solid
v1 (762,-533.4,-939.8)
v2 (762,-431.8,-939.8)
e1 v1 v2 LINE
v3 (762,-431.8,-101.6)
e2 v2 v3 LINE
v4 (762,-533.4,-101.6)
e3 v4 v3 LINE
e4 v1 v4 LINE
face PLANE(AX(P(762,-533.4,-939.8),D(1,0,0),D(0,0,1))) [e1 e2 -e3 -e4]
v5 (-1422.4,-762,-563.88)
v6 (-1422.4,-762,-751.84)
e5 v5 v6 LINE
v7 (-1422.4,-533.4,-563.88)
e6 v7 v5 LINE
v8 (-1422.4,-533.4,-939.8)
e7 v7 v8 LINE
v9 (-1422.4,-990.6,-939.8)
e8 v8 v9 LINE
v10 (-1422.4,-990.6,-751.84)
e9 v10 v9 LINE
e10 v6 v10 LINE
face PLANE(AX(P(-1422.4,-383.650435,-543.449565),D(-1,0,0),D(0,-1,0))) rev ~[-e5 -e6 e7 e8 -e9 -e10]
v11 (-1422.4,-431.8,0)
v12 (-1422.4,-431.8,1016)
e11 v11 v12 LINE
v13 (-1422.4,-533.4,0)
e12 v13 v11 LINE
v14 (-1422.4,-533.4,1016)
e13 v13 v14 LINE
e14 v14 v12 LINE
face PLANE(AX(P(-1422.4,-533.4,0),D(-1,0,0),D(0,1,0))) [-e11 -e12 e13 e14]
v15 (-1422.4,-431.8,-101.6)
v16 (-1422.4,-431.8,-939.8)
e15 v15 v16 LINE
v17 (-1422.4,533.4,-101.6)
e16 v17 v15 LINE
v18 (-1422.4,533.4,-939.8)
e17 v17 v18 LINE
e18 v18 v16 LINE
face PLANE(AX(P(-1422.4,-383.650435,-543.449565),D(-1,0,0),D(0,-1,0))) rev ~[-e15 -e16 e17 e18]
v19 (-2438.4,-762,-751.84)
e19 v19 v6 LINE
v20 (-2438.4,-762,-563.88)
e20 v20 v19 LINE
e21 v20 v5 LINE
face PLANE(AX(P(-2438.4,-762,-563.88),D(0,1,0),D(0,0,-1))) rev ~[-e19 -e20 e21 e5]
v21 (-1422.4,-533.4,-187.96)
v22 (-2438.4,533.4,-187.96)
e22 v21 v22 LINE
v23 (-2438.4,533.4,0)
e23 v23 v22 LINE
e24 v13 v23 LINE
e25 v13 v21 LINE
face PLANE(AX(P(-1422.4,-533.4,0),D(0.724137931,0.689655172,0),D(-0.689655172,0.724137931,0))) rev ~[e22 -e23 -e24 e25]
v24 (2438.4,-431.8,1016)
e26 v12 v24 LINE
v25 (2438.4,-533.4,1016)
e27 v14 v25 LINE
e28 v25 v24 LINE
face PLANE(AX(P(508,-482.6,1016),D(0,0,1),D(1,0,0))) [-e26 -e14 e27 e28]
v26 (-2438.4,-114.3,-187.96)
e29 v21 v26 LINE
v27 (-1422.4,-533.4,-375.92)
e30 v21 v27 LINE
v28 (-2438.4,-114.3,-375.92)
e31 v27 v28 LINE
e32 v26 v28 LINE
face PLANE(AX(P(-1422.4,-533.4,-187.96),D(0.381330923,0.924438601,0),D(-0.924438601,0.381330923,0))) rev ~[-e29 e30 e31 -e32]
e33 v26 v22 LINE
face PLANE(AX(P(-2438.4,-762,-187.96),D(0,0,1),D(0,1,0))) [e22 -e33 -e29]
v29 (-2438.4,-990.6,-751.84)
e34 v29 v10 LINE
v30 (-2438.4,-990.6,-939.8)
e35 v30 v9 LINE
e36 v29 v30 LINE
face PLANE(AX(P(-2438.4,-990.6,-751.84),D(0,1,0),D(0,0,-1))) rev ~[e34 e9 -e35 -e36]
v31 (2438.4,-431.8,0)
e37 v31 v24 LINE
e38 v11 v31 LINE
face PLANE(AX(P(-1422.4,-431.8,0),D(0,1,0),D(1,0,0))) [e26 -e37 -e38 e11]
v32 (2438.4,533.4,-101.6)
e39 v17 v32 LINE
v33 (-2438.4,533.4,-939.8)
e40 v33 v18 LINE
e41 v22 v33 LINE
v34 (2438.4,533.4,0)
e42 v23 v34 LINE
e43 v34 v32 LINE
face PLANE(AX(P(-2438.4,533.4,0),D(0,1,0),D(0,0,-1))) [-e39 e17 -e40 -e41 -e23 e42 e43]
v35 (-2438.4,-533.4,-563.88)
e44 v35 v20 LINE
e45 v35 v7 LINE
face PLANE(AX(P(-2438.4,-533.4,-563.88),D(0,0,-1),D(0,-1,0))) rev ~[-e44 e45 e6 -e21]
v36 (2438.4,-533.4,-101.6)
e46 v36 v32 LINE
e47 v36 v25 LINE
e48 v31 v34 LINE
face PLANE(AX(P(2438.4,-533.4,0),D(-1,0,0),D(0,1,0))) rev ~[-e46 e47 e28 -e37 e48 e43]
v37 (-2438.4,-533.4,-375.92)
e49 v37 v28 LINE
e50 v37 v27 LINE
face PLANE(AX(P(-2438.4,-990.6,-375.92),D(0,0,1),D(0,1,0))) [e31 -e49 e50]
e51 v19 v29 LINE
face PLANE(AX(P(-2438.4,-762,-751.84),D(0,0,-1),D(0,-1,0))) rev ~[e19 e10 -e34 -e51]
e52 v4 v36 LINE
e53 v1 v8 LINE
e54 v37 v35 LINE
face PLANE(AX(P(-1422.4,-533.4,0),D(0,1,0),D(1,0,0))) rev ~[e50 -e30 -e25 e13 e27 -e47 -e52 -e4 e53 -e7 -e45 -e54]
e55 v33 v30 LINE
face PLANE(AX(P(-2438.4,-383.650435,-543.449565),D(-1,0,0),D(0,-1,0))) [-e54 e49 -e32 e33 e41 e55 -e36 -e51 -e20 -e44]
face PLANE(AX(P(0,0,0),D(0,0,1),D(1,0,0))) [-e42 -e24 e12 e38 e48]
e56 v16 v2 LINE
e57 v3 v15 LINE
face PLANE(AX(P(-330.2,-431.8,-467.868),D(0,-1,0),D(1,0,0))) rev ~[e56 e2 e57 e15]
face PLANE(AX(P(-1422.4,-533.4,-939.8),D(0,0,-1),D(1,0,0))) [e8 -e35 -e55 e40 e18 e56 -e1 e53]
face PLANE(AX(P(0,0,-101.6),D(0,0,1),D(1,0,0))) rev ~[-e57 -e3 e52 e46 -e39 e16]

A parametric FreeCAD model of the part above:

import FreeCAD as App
import Part
import Sketcher
Q = App.Units.Quantity

doc = App.newDocument("Part")
body = doc.addObject("PartDesign::Body", "Body")

sketch1 = body.newObject("Sketcher::SketchObject", "Sketch")
sketch1.AttachmentSupport = (doc.getObject("XY_Plane"), [""])
sketch1.MapMode = "FlatFace"
sketch1.addGeometry(Part.LineSegment(App.Vector(-2438, 533, 0), App.Vector(-2438, -533, 0)), False)
sketch1.addGeometry(Part.LineSegment(App.Vector(-2438, -533, 0), App.Vector(2438, -533, 0)), False)
sketch1.addGeometry(Part.LineSegment(App.Vector(2438, -533, 0), App.Vector(2438, 533, 0)), False)
sketch1.addGeometry(Part.LineSegment(App.Vector(2438, 533, 0), App.Vector(-2438, 533, 0)), False)
sketch1.addConstraint(Sketcher.Constraint("Coincident", 0, 2, 1, 1))
sketch1.addConstraint(Sketcher.Constraint("Coincident", 1, 2, 2, 1))
sketch1.addConstraint(Sketcher.Constraint("Coincident", 2, 2, 3, 1))
sketch1.addConstraint(Sketcher.Constraint("Coincident", 3, 2, 0, 1))
sketch1.addConstraint(Sketcher.Constraint("Vertical", 0))
sketch1.addConstraint(Sketcher.Constraint("Horizontal", 1))
sketch1.addConstraint(Sketcher.Constraint("Vertical", 2))
sketch1.addConstraint(Sketcher.Constraint("Horizontal", 3))
sketch1.addConstraint(Sketcher.Constraint("Symmetric", 0, 2, 2, 2, -1, 1))
sketch1.addConstraint(Sketcher.Constraint("DistanceX", 1, 1, 1, 2, Q("192 in")))
sketch1.addConstraint(Sketcher.Constraint("DistanceY", 0, 2, 0, 1, Q("42 in")))
pad1 = body.newObject("PartDesign::Pad", "Pad")
pad1.Profile = sketch1
pad1.Length = Q("4 in")
pad1.Reversed = True

sketch2 = body.newObject("Sketcher::SketchObject", "Sketch001")
sketch2.AttachmentSupport = (doc.getObject("YZ_Plane"), [""])
sketch2.MapMode = "FlatFace"
sketch2.AttachmentOffset = App.Placement(App.Vector(0, 0, -96 * 25.4), App.Rotation())
sketch2.addGeometry(Part.LineSegment(App.Vector(-533, -188, 0), App.Vector(-533, 0, 0)), False)
sketch2.addGeometry(Part.LineSegment(App.Vector(-533, 0, 0), App.Vector(533, 0, 0)), False)
sketch2.addGeometry(Part.LineSegment(App.Vector(533, 0, 0), App.Vector(533, -940, 0)), False)
sketch2.addGeometry(Part.LineSegment(App.Vector(533, -940, 0), App.Vector(-1448, -940, 0)), False)
sketch2.addGeometry(Part.LineSegment(App.Vector(-1448, -940, 0), App.Vector(-1448, -752, 0)), False)
sketch2.addGeometry(Part.LineSegment(App.Vector(-1448, -752, 0), App.Vector(-1219, -752, 0)), False)
sketch2.addGeometry(Part.LineSegment(App.Vector(-1219, -752, 0), App.Vector(-1219, -564, 0)), False)
sketch2.addGeometry(Part.LineSegment(App.Vector(-1219, -564, 0), App.Vector(-991, -564, 0)), False)
sketch2.addGeometry(Part.LineSegment(App.Vector(-991, -564, 0), App.Vector(-991, -376, 0)), False)
sketch2.addGeometry(Part.LineSegment(App.Vector(-991, -376, 0), App.Vector(-762, -376, 0)), False)
sketch2.addGeometry(Part.LineSegment(App.Vector(-762, -376, 0), App.Vector(-762, -188, 0)), False)
sketch2.addGeometry(Part.LineSegment(App.Vector(-762, -188, 0), App.Vector(-533, -188, 0)), False)
sketch2.addConstraint(Sketcher.Constraint("Coincident", 0, 2, 1, 1))
sketch2.addConstraint(Sketcher.Constraint("Coincident", 1, 2, 2, 1))
sketch2.addConstraint(Sketcher.Constraint("Coincident", 2, 2, 3, 1))
sketch2.addConstraint(Sketcher.Constraint("Coincident", 3, 2, 4, 1))
sketch2.addConstraint(Sketcher.Constraint("Coincident", 4, 2, 5, 1))
sketch2.addConstraint(Sketcher.Constraint("Coincident", 5, 2, 6, 1))
sketch2.addConstraint(Sketcher.Constraint("Coincident", 6, 2, 7, 1))
sketch2.addConstraint(Sketcher.Constraint("Coincident", 7, 2, 8, 1))
sketch2.addConstraint(Sketcher.Constraint("Coincident", 8, 2, 9, 1))
sketch2.addConstraint(Sketcher.Constraint("Coincident", 9, 2, 10, 1))
sketch2.addConstraint(Sketcher.Constraint("Coincident", 10, 2, 11, 1))
sketch2.addConstraint(Sketcher.Constraint("Coincident", 11, 2, 0, 1))
sketch2.addConstraint(Sketcher.Constraint("Vertical", 0))
sketch2.addConstraint(Sketcher.Constraint("Horizontal", 1))
sketch2.addConstraint(Sketcher.Constraint("Vertical", 2))
sketch2.addConstraint(Sketcher.Constraint("Horizontal", 3))
sketch2.addConstraint(Sketcher.Constraint("Vertical", 4))
sketch2.addConstraint(Sketcher.Constraint("Horizontal", 5))
sketch2.addConstraint(Sketcher.Constraint("Vertical", 6))
sketch2.addConstraint(Sketcher.Constraint("Horizontal", 7))
sketch2.addConstraint(Sketcher.Constraint("Vertical", 8))
sketch2.addConstraint(Sketcher.Constraint("Horizontal", 9))
sketch2.addConstraint(Sketcher.Constraint("Vertical", 10))
sketch2.addConstraint(Sketcher.Constraint("Horizontal", 11))
sketch2.addConstraint(Sketcher.Constraint("Symmetric", 0, 2, 1, 2, -1, 1))
sketch2.addConstraint(Sketcher.Constraint("Equal", 5, 7))
sketch2.addConstraint(Sketcher.Constraint("Equal", 7, 9))
sketch2.addConstraint(Sketcher.Constraint("Equal", 9, 11))
sketch2.addConstraint(Sketcher.Constraint("Equal", 0, 4))
sketch2.addConstraint(Sketcher.Constraint("Equal", 4, 6))
sketch2.addConstraint(Sketcher.Constraint("Equal", 6, 8))
sketch2.addConstraint(Sketcher.Constraint("Equal", 8, 10))
sketch2.addConstraint(Sketcher.Constraint("DistanceX", 1, 1, 1, 2, Q("42 in")))
sketch2.addConstraint(Sketcher.Constraint("DistanceX", 3, 2, 3, 1, Q("78 in")))
sketch2.addConstraint(Sketcher.Constraint("DistanceY", 2, 2, 2, 1, Q("37 in")))
pad2 = body.newObject("PartDesign::Pad", "Pad001")
pad2.Profile = sketch2
pad2.Length = Q("40 in")

sketch3 = body.newObject("Sketcher::SketchObject", "Sketch002")
sketch3.AttachmentSupport = (doc.getObject("XZ_Plane"), [""])
sketch3.MapMode = "FlatFace"
sketch3.AttachmentOffset = App.Placement(App.Vector(0, 0, 21 * 25.4), App.Rotation())
sketch3.addGeometry(Part.LineSegment(App.Vector(762, -102, 0), App.Vector(-1422, -102, 0)), False)
sketch3.addGeometry(Part.LineSegment(App.Vector(-1422, -102, 0), App.Vector(-1422, -940, 0)), False)
sketch3.addGeometry(Part.LineSegment(App.Vector(-1422, -940, 0), App.Vector(-813, -940, 0)), False)
sketch3.addGeometry(Part.LineSegment(App.Vector(-813, -940, 0), App.Vector(-813, -229, 0)), False)
sketch3.addGeometry(Part.LineSegment(App.Vector(-813, -229, 0), App.Vector(-356, -229, 0)), False)
sketch3.addGeometry(Part.LineSegment(App.Vector(-356, -229, 0), App.Vector(-356, -940, 0)), False)
sketch3.addGeometry(Part.LineSegment(App.Vector(-356, -940, 0), App.Vector(-305, -940, 0)), False)
sketch3.addGeometry(Part.LineSegment(App.Vector(-305, -940, 0), App.Vector(-305, -229, 0)), False)
sketch3.addGeometry(Part.LineSegment(App.Vector(-305, -229, 0), App.Vector(152, -229, 0)), False)
sketch3.addGeometry(Part.LineSegment(App.Vector(152, -229, 0), App.Vector(152, -940, 0)), False)
sketch3.addGeometry(Part.LineSegment(App.Vector(152, -940, 0), App.Vector(762, -940, 0)), False)
sketch3.addGeometry(Part.LineSegment(App.Vector(762, -940, 0), App.Vector(762, -102, 0)), False)
sketch3.addConstraint(Sketcher.Constraint("Coincident", 0, 2, 1, 1))
sketch3.addConstraint(Sketcher.Constraint("Coincident", 1, 2, 2, 1))
sketch3.addConstraint(Sketcher.Constraint("Coincident", 2, 2, 3, 1))
sketch3.addConstraint(Sketcher.Constraint("Coincident", 3, 2, 4, 1))
sketch3.addConstraint(Sketcher.Constraint("Coincident", 4, 2, 5, 1))
sketch3.addConstraint(Sketcher.Constraint("Coincident", 5, 2, 6, 1))
sketch3.addConstraint(Sketcher.Constraint("Coincident", 6, 2, 7, 1))
sketch3.addConstraint(Sketcher.Constraint("Coincident", 7, 2, 8, 1))
sketch3.addConstraint(Sketcher.Constraint("Coincident", 8, 2, 9, 1))
sketch3.addConstraint(Sketcher.Constraint("Coincident", 9, 2, 10, 1))
sketch3.addConstraint(Sketcher.Constraint("Coincident", 10, 2, 11, 1))
sketch3.addConstraint(Sketcher.Constraint("Coincident", 11, 2, 0, 1))
sketch3.addConstraint(Sketcher.Constraint("Horizontal", 0))
sketch3.addConstraint(Sketcher.Constraint("Vertical", 1))
sketch3.addConstraint(Sketcher.Constraint("Horizontal", 2))
sketch3.addConstraint(Sketcher.Constraint("Vertical", 3))
sketch3.addConstraint(Sketcher.Constraint("Horizontal", 4))
sketch3.addConstraint(Sketcher.Constraint("Vertical", 5))
sketch3.addConstraint(Sketcher.Constraint("Horizontal", 6))
sketch3.addConstraint(Sketcher.Constraint("Vertical", 7))
sketch3.addConstraint(Sketcher.Constraint("Horizontal", 8))
sketch3.addConstraint(Sketcher.Constraint("Vertical", 9))
sketch3.addConstraint(Sketcher.Constraint("Horizontal", 10))
sketch3.addConstraint(Sketcher.Constraint("Vertical", 11))
sketch3.addConstraint(Sketcher.Constraint("Horizontal", 2, 2, 5, 2))
sketch3.addConstraint(Sketcher.Constraint("Horizontal", 4, 2, 7, 2))
sketch3.addConstraint(Sketcher.Constraint("Horizontal", 6, 2, 9, 2))
sketch3.addConstraint(Sketcher.Constraint("Equal", 4, 8))
sketch3.addConstraint(Sketcher.Constraint("Equal", 2, 10))
sketch3.addConstraint(Sketcher.Constraint("DistanceX", 0, 2, 0, 1, Q("86 in")))
sketch3.addConstraint(Sketcher.Constraint("DistanceX", 2, 1, 2, 2, Q("24 in")))
sketch3.addConstraint(Sketcher.Constraint("DistanceX", 4, 1, 4, 2, Q("18 in")))
sketch3.addConstraint(Sketcher.Constraint("DistanceY", 1, 2, 1, 1, Q("33 in")))
sketch3.addConstraint(Sketcher.Constraint("DistanceY", 3, 1, 3, 2, Q("28 in")))
sketch3.addConstraint(Sketcher.Constraint("DistanceX", 0, 2, -1, 1, Q("56 in")))
sketch3.addConstraint(Sketcher.Constraint("DistanceY", 0, 2, -1, 1, Q("4 in")))
pad3 = body.newObject("PartDesign::Pad", "Pad002")
pad3.Profile = sketch3
pad3.Length = Q("4 in")
pad3.Reversed = True

sketch4 = body.newObject("Sketcher::SketchObject", "Sketch003")
sketch4.AttachmentSupport = (doc.getObject("XY_Plane"), [""])
sketch4.MapMode = "FlatFace"
sketch4.addGeometry(Part.LineSegment(App.Vector(-2438, -533, 0), App.Vector(-1422, -533, 0)), False)
sketch4.addGeometry(Part.LineSegment(App.Vector(-1422, -533, 0), App.Vector(-2438, 533, 0)), False)
sketch4.addGeometry(Part.LineSegment(App.Vector(-2438, 533, 0), App.Vector(-2438, -533, 0)), False)
sketch4.addConstraint(Sketcher.Constraint("Coincident", 0, 2, 1, 1))
sketch4.addConstraint(Sketcher.Constraint("Coincident", 1, 2, 2, 1))
sketch4.addConstraint(Sketcher.Constraint("Coincident", 2, 2, 0, 1))
sketch4.addConstraint(Sketcher.Constraint("Horizontal", 0))
sketch4.addConstraint(Sketcher.Constraint("Vertical", 2))
sketch4.addConstraint(Sketcher.Constraint("DistanceX", 0, 1, 0, 2, Q("40 in")))
sketch4.addConstraint(Sketcher.Constraint("DistanceY", 2, 2, 2, 1, Q("42 in")))
sketch4.addConstraint(Sketcher.Constraint("DistanceX", 0, 2, -1, 1, Q("56 in")))
sketch4.addConstraint(Sketcher.Constraint("DistanceY", 0, 2, -1, 1, Q("21 in")))
pocket1 = body.newObject("PartDesign::Pocket", "Pocket")
pocket1.Profile = sketch4
pocket1.Length = Q("7.4 in")

sketch5 = body.newObject("Sketcher::SketchObject", "Sketch004")
sketch5.AttachmentSupport = (doc.getObject("XY_Plane"), [""])
sketch5.MapMode = "FlatFace"
sketch5.AttachmentOffset = App.Placement(App.Vector(0, 0, -7.4 * 25.4), App.Rotation())
sketch5.addGeometry(Part.LineSegment(App.Vector(-1422, -762, 0), App.Vector(-1422, -533, 0)), False)
sketch5.addGeometry(Part.LineSegment(App.Vector(-1422, -533, 0), App.Vector(-2438, -114, 0)), False)
sketch5.addGeometry(Part.LineSegment(App.Vector(-2438, -114, 0), App.Vector(-2438, -762, 0)), False)
sketch5.addGeometry(Part.LineSegment(App.Vector(-2438, -762, 0), App.Vector(-1422, -762, 0)), False)
sketch5.addConstraint(Sketcher.Constraint("Coincident", 0, 2, 1, 1))
sketch5.addConstraint(Sketcher.Constraint("Coincident", 1, 2, 2, 1))
sketch5.addConstraint(Sketcher.Constraint("Coincident", 2, 2, 3, 1))
sketch5.addConstraint(Sketcher.Constraint("Coincident", 3, 2, 0, 1))
sketch5.addConstraint(Sketcher.Constraint("Vertical", 0))
sketch5.addConstraint(Sketcher.Constraint("Vertical", 2))
sketch5.addConstraint(Sketcher.Constraint("Horizontal", 3))
sketch5.addConstraint(Sketcher.Constraint("DistanceX", 3, 1, 3, 2, Q("40 in")))
sketch5.addConstraint(Sketcher.Constraint("DistanceY", 0, 1, 0, 2, Q("9 in")))
sketch5.addConstraint(Sketcher.Constraint("DistanceY", 2, 2, 2, 1, Q("25.5 in")))
sketch5.addConstraint(Sketcher.Constraint("DistanceX", 0, 2, -1, 1, Q("56 in")))
sketch5.addConstraint(Sketcher.Constraint("DistanceY", 0, 2, -1, 1, Q("21 in")))
pocket2 = body.newObject("PartDesign::Pocket", "Pocket001")
pocket2.Profile = sketch5
pocket2.Length = Q("7.4 in")

sketch6 = body.newObject("Sketcher::SketchObject", "Sketch005")
sketch6.AttachmentSupport = (doc.getObject("YZ_Plane"), [""])
sketch6.MapMode = "FlatFace"
sketch6.AttachmentOffset = App.Placement(App.Vector(0, 0, -96 * 25.4), App.Rotation())
sketch6.addGeometry(Part.LineSegment(App.Vector(-1448, -376, 0), App.Vector(-533, -376, 0)), False)
sketch6.addGeometry(Part.LineSegment(App.Vector(-533, -376, 0), App.Vector(-533, -564, 0)), False)
sketch6.addGeometry(Part.LineSegment(App.Vector(-533, -564, 0), App.Vector(-762, -564, 0)), False)
sketch6.addGeometry(Part.LineSegment(App.Vector(-762, -564, 0), App.Vector(-762, -752, 0)), False)
sketch6.addGeometry(Part.LineSegment(App.Vector(-762, -752, 0), App.Vector(-991, -752, 0)), False)
sketch6.addGeometry(Part.LineSegment(App.Vector(-991, -752, 0), App.Vector(-991, -940, 0)), False)
sketch6.addGeometry(Part.LineSegment(App.Vector(-991, -940, 0), App.Vector(-1448, -940, 0)), False)
sketch6.addGeometry(Part.LineSegment(App.Vector(-1448, -940, 0), App.Vector(-1448, -376, 0)), False)
sketch6.addConstraint(Sketcher.Constraint("Coincident", 0, 2, 1, 1))
sketch6.addConstraint(Sketcher.Constraint("Coincident", 1, 2, 2, 1))
sketch6.addConstraint(Sketcher.Constraint("Coincident", 2, 2, 3, 1))
sketch6.addConstraint(Sketcher.Constraint("Coincident", 3, 2, 4, 1))
sketch6.addConstraint(Sketcher.Constraint("Coincident", 4, 2, 5, 1))
sketch6.addConstraint(Sketcher.Constraint("Coincident", 5, 2, 6, 1))
sketch6.addConstraint(Sketcher.Constraint("Coincident", 6, 2, 7, 1))
sketch6.addConstraint(Sketcher.Constraint("Coincident", 7, 2, 0, 1))
sketch6.addConstraint(Sketcher.Constraint("Horizontal", 0))
sketch6.addConstraint(Sketcher.Constraint("Vertical", 1))
sketch6.addConstraint(Sketcher.Constraint("Horizontal", 2))
sketch6.addConstraint(Sketcher.Constraint("Vertical", 3))
sketch6.addConstraint(Sketcher.Constraint("Horizontal", 4))
sketch6.addConstraint(Sketcher.Constraint("Vertical", 5))
sketch6.addConstraint(Sketcher.Constraint("Horizontal", 6))
sketch6.addConstraint(Sketcher.Constraint("Vertical", 7))
sketch6.addConstraint(Sketcher.Constraint("Equal", 2, 4))
sketch6.addConstraint(Sketcher.Constraint("Equal", 1, 3))
sketch6.addConstraint(Sketcher.Constraint("Equal", 3, 5))
sketch6.addConstraint(Sketcher.Constraint("DistanceX", 0, 1, 0, 2, Q("36 in")))
sketch6.addConstraint(Sketcher.Constraint("DistanceX", 2, 2, 2, 1, Q("9 in")))
sketch6.addConstraint(Sketcher.Constraint("DistanceY", 1, 2, 1, 1, Q("7.4 in")))
sketch6.addConstraint(Sketcher.Constraint("DistanceX", 0, 2, -1, 1, Q("21 in")))
sketch6.addConstraint(Sketcher.Constraint("DistanceY", 5, 2, -1, 1, Q("37 in")))
pocket3 = body.newObject("PartDesign::Pocket", "Pocket002")
pocket3.Profile = sketch6
pocket3.Length = 1300.3193
pocket3.Reversed = True

sketch7 = body.newObject("Sketcher::SketchObject", "Sketch006")
sketch7.AttachmentSupport = (doc.getObject("XZ_Plane"), [""])
sketch7.MapMode = "FlatFace"
sketch7.AttachmentOffset = App.Placement(App.Vector(0, 0, 21 * 25.4), App.Rotation())
sketch7.addGeometry(Part.LineSegment(App.Vector(-1422, -102, 0), App.Vector(-1422, -940, 0)), False)
sketch7.addGeometry(Part.LineSegment(App.Vector(-1422, -940, 0), App.Vector(762, -940, 0)), False)
sketch7.addGeometry(Part.LineSegment(App.Vector(762, -940, 0), App.Vector(762, -102, 0)), False)
sketch7.addGeometry(Part.LineSegment(App.Vector(762, -102, 0), App.Vector(-1422, -102, 0)), False)
sketch7.addConstraint(Sketcher.Constraint("Coincident", 0, 2, 1, 1))
sketch7.addConstraint(Sketcher.Constraint("Coincident", 1, 2, 2, 1))
sketch7.addConstraint(Sketcher.Constraint("Coincident", 2, 2, 3, 1))
sketch7.addConstraint(Sketcher.Constraint("Coincident", 3, 2, 0, 1))
sketch7.addConstraint(Sketcher.Constraint("Vertical", 0))
sketch7.addConstraint(Sketcher.Constraint("Horizontal", 1))
sketch7.addConstraint(Sketcher.Constraint("Vertical", 2))
sketch7.addConstraint(Sketcher.Constraint("Horizontal", 3))
sketch7.addConstraint(Sketcher.Constraint("DistanceX", 1, 1, 1, 2, Q("86 in")))
sketch7.addConstraint(Sketcher.Constraint("DistanceY", 0, 2, 0, 1, Q("33 in")))
sketch7.addConstraint(Sketcher.Constraint("DistanceX", 0, 2, -1, 1, Q("56 in")))
sketch7.addConstraint(Sketcher.Constraint("DistanceY", 0, 2, -1, 1, Q("37 in")))
pad4 = body.newObject("PartDesign::Pad", "Pad003")
pad4.Profile = sketch7
pad4.Length = Q("4 in")
pad4.Reversed = True

sketch8 = body.newObject("Sketcher::SketchObject", "Sketch007")
sketch8.AttachmentSupport = (doc.getObject("XY_Plane"), [""])
sketch8.MapMode = "FlatFace"
sketch8.addGeometry(Part.LineSegment(App.Vector(-1422, -432, 0), App.Vector(-1422, -533, 0)), False)
sketch8.addGeometry(Part.LineSegment(App.Vector(-1422, -533, 0), App.Vector(2438, -533, 0)), False)
sketch8.addGeometry(Part.LineSegment(App.Vector(2438, -533, 0), App.Vector(2438, -432, 0)), False)
sketch8.addGeometry(Part.LineSegment(App.Vector(2438, -432, 0), App.Vector(-1422, -432, 0)), False)
sketch8.addConstraint(Sketcher.Constraint("Coincident", 0, 2, 1, 1))
sketch8.addConstraint(Sketcher.Constraint("Coincident", 1, 2, 2, 1))
sketch8.addConstraint(Sketcher.Constraint("Coincident", 2, 2, 3, 1))
sketch8.addConstraint(Sketcher.Constraint("Coincident", 3, 2, 0, 1))
sketch8.addConstraint(Sketcher.Constraint("Vertical", 0))
sketch8.addConstraint(Sketcher.Constraint("Horizontal", 1))
sketch8.addConstraint(Sketcher.Constraint("Vertical", 2))
sketch8.addConstraint(Sketcher.Constraint("Horizontal", 3))
sketch8.addConstraint(Sketcher.Constraint("DistanceX", 1, 1, 1, 2, Q("152 in")))
sketch8.addConstraint(Sketcher.Constraint("DistanceY", 0, 2, 0, 1, Q("4 in")))
sketch8.addConstraint(Sketcher.Constraint("DistanceX", 0, 2, -1, 1, Q("56 in")))
sketch8.addConstraint(Sketcher.Constraint("DistanceY", 0, 2, -1, 1, Q("21 in")))
pad5 = body.newObject("PartDesign::Pad", "Pad004")
pad5.Profile = sketch8
pad5.Length = Q("40 in")

doc.recompute()
